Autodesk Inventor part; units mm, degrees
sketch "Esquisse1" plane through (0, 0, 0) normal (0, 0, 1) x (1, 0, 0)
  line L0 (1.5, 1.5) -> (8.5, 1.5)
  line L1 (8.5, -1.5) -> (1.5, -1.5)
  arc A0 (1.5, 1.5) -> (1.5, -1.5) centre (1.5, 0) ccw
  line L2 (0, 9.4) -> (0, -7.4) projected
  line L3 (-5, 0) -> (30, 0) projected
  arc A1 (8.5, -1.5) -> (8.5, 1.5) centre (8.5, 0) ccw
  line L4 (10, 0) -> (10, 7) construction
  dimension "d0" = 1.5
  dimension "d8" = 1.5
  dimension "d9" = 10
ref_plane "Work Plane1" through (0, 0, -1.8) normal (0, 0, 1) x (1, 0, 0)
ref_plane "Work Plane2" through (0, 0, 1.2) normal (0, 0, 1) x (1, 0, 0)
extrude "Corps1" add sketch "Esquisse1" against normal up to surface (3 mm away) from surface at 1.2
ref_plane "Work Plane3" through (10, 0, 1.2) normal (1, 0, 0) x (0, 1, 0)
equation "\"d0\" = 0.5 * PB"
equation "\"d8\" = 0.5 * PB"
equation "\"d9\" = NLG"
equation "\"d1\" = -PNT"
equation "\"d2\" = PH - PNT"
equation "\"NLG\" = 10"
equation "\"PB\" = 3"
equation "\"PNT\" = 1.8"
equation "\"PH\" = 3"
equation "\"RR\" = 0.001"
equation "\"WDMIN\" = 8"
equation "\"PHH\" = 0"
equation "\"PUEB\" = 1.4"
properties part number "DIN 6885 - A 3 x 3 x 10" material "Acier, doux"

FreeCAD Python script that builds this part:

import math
import FreeCAD as App
import Part
import Sketcher
from FreeCAD import Vector
Q = App.Units.Quantity

doc = App.newDocument("Part")
params = doc.addObject("Spreadsheet::Sheet", "Params")
for row, (alias, value) in enumerate([
    ("sketch1_radius", "1.5 mm"),
    ("sketch1_width", "7 mm"),
    ("pad1_length", "3 mm"),
], start=1):
    params.set(f"A{row}", alias)
    params.set(f"B{row}", "=" + value)
    params.setAlias(f"B{row}", alias)

body = doc.addObject("PartDesign::Body", "Body")

# Sketch on XY plane
sketch1 = body.newObject("Sketcher::SketchObject", "Sketch")
sketch1.AttachmentSupport = (doc.getObject("XY_Plane"), [""])
sketch1.MapMode = "FlatFace"
sketch1.AttachmentOffset = App.Placement(Vector(0, 0, 1.2), App.Rotation())
sketch1.addGeometry([
    Part.LineSegment(Vector(8.5, 1.5, 0), Vector(1.5, 1.5, 0)),
    Part.ArcOfCircle(Part.Circle(Vector(1.5, 0, 0), Vector(0, 0, 1), 1.5), math.radians(90), math.radians(270)),
    Part.LineSegment(Vector(1.5, -1.5, 0), Vector(8.5, -1.5, 0)),
    Part.ArcOfCircle(Part.Circle(Vector(8.5, 0, 0), Vector(0, 0, 1), 1.5), math.radians(-90), math.radians(90)),
], False)
sketch1.addConstraint([
    Sketcher.Constraint("Tangent", 0, 2, 1, 1),
    Sketcher.Constraint("Tangent", 1, 2, 2, 1),
    Sketcher.Constraint("Tangent", 2, 2, 3, 1),
    Sketcher.Constraint("Tangent", 3, 2, 0, 1),
    Sketcher.Constraint("Horizontal", 0),
    Sketcher.Constraint("Horizontal", 2),
    Sketcher.Constraint("PointOnObject", 1, 3, -1),
    Sketcher.Constraint("Radius", 1, Q("1.5 mm")),
    Sketcher.Constraint("DistanceX", -1, 1, 1, 3, Q("1.5 mm")),
    Sketcher.Constraint("DistanceX", 0, 2, 0, 1, Q("7 mm")),
])
sketch1.setExpression("Constraints[7]", "Params.sketch1_radius")
sketch1.setExpression("Constraints[9]", "Params.sketch1_width")
pad1 = body.newObject("PartDesign::Pad", "Pad")
pad1.Profile = sketch1
pad1.setExpression("Length", "Params.pad1_length")
pad1.Reversed = True

doc.recompute()
